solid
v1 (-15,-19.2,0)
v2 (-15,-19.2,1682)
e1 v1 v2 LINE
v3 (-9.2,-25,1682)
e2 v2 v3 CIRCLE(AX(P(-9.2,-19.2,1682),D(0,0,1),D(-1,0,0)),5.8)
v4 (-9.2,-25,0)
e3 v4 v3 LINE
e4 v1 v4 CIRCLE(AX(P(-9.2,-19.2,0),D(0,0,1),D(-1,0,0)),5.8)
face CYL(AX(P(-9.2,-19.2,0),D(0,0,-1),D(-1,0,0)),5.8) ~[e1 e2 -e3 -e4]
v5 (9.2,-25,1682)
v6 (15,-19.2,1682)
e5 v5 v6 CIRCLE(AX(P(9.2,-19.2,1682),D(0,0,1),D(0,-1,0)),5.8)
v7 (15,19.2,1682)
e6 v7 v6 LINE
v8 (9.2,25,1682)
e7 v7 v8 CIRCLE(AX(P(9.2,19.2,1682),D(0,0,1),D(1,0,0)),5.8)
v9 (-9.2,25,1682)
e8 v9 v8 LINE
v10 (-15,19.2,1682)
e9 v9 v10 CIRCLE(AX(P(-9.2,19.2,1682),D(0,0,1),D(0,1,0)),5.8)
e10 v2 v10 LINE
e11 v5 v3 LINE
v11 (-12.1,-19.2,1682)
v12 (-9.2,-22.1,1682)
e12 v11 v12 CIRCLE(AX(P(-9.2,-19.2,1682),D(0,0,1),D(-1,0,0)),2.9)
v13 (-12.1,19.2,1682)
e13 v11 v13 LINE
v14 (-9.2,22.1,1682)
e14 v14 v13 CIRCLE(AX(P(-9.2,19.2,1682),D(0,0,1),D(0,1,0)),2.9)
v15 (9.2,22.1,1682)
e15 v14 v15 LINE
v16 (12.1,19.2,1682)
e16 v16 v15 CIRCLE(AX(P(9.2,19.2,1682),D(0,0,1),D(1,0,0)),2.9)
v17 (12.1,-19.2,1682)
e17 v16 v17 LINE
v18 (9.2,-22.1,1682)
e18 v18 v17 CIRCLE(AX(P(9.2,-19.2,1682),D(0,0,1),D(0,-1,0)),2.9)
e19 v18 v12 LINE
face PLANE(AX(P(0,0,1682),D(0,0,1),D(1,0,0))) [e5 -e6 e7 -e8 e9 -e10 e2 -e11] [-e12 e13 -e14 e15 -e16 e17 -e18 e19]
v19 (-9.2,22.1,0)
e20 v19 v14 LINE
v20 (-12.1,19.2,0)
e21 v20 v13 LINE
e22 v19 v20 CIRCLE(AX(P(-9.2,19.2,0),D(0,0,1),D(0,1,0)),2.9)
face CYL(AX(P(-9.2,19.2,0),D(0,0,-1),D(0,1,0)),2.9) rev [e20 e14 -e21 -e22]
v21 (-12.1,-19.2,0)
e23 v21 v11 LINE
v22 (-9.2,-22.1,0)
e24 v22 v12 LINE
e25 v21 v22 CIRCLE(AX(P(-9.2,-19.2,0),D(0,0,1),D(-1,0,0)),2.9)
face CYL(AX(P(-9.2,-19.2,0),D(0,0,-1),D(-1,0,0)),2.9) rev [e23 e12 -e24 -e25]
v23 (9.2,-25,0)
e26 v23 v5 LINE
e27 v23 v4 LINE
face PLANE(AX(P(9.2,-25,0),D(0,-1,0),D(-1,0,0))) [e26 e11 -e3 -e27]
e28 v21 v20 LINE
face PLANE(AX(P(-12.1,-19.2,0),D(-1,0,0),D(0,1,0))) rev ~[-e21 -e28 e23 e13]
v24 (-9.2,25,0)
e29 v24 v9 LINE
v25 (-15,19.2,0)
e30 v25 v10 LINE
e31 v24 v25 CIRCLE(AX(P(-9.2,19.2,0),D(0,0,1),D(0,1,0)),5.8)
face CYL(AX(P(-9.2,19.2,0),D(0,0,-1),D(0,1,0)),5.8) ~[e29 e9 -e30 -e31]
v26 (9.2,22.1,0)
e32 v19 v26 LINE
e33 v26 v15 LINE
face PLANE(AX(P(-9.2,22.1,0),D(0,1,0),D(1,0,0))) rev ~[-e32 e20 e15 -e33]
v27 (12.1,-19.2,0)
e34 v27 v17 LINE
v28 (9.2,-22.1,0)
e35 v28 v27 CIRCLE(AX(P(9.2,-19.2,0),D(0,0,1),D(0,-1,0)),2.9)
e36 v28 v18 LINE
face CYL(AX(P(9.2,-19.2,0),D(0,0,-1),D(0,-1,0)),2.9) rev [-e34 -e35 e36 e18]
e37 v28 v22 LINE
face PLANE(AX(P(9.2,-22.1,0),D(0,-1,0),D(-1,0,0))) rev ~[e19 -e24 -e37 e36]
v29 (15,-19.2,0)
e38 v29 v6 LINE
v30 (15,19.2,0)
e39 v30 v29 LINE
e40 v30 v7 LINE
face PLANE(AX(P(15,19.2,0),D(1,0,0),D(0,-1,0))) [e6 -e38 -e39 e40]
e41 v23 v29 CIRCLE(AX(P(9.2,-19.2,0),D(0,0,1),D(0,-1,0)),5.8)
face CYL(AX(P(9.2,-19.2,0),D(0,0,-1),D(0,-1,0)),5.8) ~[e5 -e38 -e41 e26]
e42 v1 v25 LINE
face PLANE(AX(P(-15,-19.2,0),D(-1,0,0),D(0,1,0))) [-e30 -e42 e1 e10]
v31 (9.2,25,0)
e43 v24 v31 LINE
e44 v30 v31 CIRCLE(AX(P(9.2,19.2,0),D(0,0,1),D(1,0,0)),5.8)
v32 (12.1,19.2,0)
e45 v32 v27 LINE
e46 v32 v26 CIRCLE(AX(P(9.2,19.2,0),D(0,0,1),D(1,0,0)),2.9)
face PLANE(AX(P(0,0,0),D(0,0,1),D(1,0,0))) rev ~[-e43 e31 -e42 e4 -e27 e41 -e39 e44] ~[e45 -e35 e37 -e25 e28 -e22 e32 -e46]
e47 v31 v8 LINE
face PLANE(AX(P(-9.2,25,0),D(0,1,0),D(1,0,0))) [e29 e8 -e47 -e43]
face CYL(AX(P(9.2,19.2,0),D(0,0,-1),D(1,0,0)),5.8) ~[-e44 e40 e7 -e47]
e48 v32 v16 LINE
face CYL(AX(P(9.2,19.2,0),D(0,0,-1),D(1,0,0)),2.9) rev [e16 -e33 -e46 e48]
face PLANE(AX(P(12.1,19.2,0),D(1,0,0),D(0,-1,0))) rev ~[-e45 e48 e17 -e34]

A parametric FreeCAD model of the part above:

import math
import FreeCAD as App
import Part
import Sketcher
Q = App.Units.Quantity

doc = App.newDocument("Part")
body = doc.addObject("PartDesign::Body", "Body")

# Sketch on XY plane
sketch1 = body.newObject("Sketcher::SketchObject", "Sketch")
sketch1.AttachmentSupport = (doc.getObject("XY_Plane"), [""])
sketch1.MapMode = "FlatFace"
sketch1.addGeometry([
    Part.LineSegment(App.Vector(9.2, 25, 0), App.Vector(-9.2, 25, 0)),  # 0
    Part.ArcOfCircle(Part.Circle(App.Vector(-9.2, 19.2, 0), App.Vector(0, 0, 1), 5.8), math.radians(90), math.radians(180)),  # 1
    Part.LineSegment(App.Vector(-15, 19.2, 0), App.Vector(-15, -19.2, 0)),  # 2
    Part.ArcOfCircle(Part.Circle(App.Vector(-9.2, -19.2, 0), App.Vector(0, 0, 1), 5.8), math.radians(180), math.radians(270)),  # 3
    Part.LineSegment(App.Vector(-9.2, -25, 0), App.Vector(9.2, -25, 0)),  # 4
    Part.ArcOfCircle(Part.Circle(App.Vector(9.2, -19.2, 0), App.Vector(0, 0, 1), 5.8), math.radians(-90), math.radians(0)),  # 5
    Part.LineSegment(App.Vector(15, -19.2, 0), App.Vector(15, 19.2, 0)),  # 6
    Part.ArcOfCircle(Part.Circle(App.Vector(9.2, 19.2, 0), App.Vector(0, 0, 1), 5.8), math.radians(0), math.radians(90)),  # 7
    Part.ArcOfCircle(Part.Circle(App.Vector(-9.2, 19.2, 0), App.Vector(0, 0, 1), 2.9), math.radians(90), math.radians(180)),  # 8
    Part.LineSegment(App.Vector(-9.2, 22.1, 0), App.Vector(9.2, 22.1, 0)),  # 9
    Part.ArcOfCircle(Part.Circle(App.Vector(9.2, 19.2, 0), App.Vector(0, 0, 1), 2.9), math.radians(0), math.radians(90)),  # 10
    Part.LineSegment(App.Vector(12.1, 19.2, 0), App.Vector(12.1, -19.2, 0)),  # 11
    Part.ArcOfCircle(Part.Circle(App.Vector(9.2, -19.2, 0), App.Vector(0, 0, 1), 2.9), math.radians(-90), math.radians(0)),  # 12
    Part.LineSegment(App.Vector(9.2, -22.1, 0), App.Vector(-9.2, -22.1, 0)),  # 13
    Part.ArcOfCircle(Part.Circle(App.Vector(-9.2, -19.2, 0), App.Vector(0, 0, 1), 2.9), math.radians(180), math.radians(270)),  # 14
    Part.LineSegment(App.Vector(-12.1, -19.2, 0), App.Vector(-12.1, 19.2, 0)),  # 15
], False)
sketch1.addConstraint([
    Sketcher.Constraint("Tangent", 0, 2, 1, 1),
    Sketcher.Constraint("Tangent", 1, 2, 2, 1),
    Sketcher.Constraint("Tangent", 2, 2, 3, 1),
    Sketcher.Constraint("Tangent", 3, 2, 4, 1),
    Sketcher.Constraint("Tangent", 4, 2, 5, 1),
    Sketcher.Constraint("Tangent", 5, 2, 6, 1),
    Sketcher.Constraint("Tangent", 6, 2, 7, 1),
    Sketcher.Constraint("Tangent", 7, 2, 0, 1),
    Sketcher.Constraint("Tangent", 8, 1, 9, 1),
    Sketcher.Constraint("Tangent", 9, 2, 10, 2),
    Sketcher.Constraint("Tangent", 10, 1, 11, 1),
    Sketcher.Constraint("Tangent", 11, 2, 12, 2),
    Sketcher.Constraint("Tangent", 12, 1, 13, 1),
    Sketcher.Constraint("Tangent", 13, 2, 14, 2),
    Sketcher.Constraint("Tangent", 14, 1, 15, 1),
    Sketcher.Constraint("Tangent", 15, 2, 8, 2),
    Sketcher.Constraint("Horizontal", 0),
    Sketcher.Constraint("Vertical", 2),
    Sketcher.Constraint("Horizontal", 4),
    Sketcher.Constraint("Vertical", 6),
    Sketcher.Constraint("Horizontal", 9),
    Sketcher.Constraint("Vertical", 11),
    Sketcher.Constraint("Horizontal", 13),
    Sketcher.Constraint("Vertical", 15),
    Sketcher.Constraint("Coincident", 8, 3, 1, 3),
    Sketcher.Constraint("Coincident", 10, 3, 7, 3),
    Sketcher.Constraint("Coincident", 12, 3, 5, 3),
    Sketcher.Constraint("Equal", 1, 3),
    Sketcher.Constraint("Equal", 3, 5),
    Sketcher.Constraint("Equal", 5, 7),
    Sketcher.Constraint("Equal", 12, 14),
    Sketcher.Constraint("Symmetric", 1, 3, 5, 3, -1, 1),
    Sketcher.Constraint("Radius", 1, Q("5.8 mm")),
    Sketcher.Constraint("Radius", 8, Q("2.9 mm")),
    Sketcher.Constraint("DistanceY", -1, 1, 0, 2, Q("25 mm")),
    Sketcher.Constraint("DistanceX", 1, 2, -1, 1, Q("15 mm")),
])
pad1 = body.newObject("PartDesign::Pad", "Pad")
pad1.Profile = sketch1
pad1.Length = 1682

doc.recompute()
